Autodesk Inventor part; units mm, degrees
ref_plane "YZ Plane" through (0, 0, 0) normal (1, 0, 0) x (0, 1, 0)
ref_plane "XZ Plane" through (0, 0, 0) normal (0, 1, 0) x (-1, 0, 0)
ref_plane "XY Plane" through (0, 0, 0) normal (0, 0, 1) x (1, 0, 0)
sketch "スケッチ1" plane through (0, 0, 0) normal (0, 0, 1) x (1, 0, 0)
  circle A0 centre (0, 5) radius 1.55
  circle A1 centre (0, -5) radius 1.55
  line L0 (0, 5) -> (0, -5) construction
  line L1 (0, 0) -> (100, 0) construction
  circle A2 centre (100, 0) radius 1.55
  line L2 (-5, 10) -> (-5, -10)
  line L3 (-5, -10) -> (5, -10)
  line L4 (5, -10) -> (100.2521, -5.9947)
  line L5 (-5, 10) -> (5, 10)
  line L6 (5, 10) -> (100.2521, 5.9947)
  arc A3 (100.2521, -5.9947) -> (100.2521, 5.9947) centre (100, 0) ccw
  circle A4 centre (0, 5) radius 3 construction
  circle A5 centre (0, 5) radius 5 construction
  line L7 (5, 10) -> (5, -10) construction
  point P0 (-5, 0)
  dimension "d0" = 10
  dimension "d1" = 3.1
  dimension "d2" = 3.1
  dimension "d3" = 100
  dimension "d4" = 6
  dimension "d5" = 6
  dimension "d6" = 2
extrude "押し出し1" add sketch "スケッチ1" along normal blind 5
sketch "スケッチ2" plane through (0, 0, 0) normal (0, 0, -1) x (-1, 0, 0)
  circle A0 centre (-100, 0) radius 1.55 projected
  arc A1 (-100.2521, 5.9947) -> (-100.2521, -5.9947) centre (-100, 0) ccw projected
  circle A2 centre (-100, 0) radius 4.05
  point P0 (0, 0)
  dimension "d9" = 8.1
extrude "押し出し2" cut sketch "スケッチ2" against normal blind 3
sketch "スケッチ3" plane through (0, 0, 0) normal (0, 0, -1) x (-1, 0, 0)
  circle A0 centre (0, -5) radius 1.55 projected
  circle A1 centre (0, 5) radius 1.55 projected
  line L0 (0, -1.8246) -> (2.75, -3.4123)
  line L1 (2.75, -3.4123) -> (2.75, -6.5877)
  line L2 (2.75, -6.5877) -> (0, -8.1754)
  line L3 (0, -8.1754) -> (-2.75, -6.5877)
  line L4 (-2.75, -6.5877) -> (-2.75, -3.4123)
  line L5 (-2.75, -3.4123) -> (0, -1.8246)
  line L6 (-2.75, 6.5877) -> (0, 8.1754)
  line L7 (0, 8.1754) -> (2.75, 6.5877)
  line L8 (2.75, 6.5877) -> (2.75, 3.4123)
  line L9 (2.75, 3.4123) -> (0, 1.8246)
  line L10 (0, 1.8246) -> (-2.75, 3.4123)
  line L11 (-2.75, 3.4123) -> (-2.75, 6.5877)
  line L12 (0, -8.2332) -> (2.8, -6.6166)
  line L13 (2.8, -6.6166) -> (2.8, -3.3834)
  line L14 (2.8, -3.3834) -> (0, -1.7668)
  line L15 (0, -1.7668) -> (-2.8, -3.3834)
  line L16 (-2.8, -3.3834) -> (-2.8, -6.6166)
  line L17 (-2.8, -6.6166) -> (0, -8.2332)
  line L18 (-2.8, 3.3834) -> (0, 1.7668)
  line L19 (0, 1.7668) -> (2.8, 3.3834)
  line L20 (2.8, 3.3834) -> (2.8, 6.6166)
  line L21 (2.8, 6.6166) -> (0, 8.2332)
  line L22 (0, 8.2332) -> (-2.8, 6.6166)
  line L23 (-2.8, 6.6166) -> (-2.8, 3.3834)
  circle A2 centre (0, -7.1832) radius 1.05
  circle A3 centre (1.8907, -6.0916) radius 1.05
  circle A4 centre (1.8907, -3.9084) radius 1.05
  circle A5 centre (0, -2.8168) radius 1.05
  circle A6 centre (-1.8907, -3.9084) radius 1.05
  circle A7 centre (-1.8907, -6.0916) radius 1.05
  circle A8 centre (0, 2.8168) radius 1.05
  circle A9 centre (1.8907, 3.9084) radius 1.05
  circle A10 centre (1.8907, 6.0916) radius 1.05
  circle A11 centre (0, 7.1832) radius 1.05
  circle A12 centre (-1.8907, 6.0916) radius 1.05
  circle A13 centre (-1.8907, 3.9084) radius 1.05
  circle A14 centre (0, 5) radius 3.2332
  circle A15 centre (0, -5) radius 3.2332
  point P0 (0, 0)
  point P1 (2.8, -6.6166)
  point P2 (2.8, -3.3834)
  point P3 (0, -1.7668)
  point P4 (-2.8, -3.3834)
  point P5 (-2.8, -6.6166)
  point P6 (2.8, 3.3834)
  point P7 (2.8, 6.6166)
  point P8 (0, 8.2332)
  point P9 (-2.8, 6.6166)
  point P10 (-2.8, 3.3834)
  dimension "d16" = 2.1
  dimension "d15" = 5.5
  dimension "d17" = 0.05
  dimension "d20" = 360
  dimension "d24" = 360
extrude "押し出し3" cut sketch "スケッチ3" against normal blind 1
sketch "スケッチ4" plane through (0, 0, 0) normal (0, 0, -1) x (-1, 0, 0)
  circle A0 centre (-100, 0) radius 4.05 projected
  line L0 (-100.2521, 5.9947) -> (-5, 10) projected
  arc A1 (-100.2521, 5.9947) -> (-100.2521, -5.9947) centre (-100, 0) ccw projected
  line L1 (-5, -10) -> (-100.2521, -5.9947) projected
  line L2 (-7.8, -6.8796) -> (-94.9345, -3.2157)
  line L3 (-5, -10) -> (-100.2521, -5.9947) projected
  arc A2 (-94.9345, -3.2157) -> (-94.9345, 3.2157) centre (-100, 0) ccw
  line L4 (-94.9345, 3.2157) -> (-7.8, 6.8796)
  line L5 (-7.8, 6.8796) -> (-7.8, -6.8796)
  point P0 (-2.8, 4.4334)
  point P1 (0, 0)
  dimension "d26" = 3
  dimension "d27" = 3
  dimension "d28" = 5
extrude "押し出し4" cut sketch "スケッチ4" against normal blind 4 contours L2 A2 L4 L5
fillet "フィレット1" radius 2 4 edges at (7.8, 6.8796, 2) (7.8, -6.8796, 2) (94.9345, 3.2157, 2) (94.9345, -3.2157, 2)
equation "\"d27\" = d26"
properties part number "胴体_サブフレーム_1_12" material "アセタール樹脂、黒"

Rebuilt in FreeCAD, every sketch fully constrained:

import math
import FreeCAD as App
import Part
import Sketcher

V = App.Vector


def edges_at(feature, points):
    """Names of the edges that pass closest to the given points."""
    edges = feature.Shape.Edges
    near = lambda p: min(range(len(edges)), key=lambda i: edges[i].distToShape(Part.Vertex(*p))[0])
    return sorted({f"Edge{near(p) + 1}" for p in points})

doc = App.newDocument("Part")
body = doc.addObject("PartDesign::Body", "Body")

# Sketch on XY plane
sketch1 = body.newObject("Sketcher::SketchObject", "Sketch")
sketch1.AttachmentSupport = (doc.getObject("XY_Plane"), [""])
sketch1.MapMode = "FlatFace"
sketch1.addGeometry([
    Part.LineSegment(V(5, 10, 0), V(-5, 10, 0)),  # 0
    Part.LineSegment(V(-5, 10, 0), V(-5, -10, 0)),  # 1
    Part.LineSegment(V(-5, -10, 0), V(5, -10, 0)),  # 2
    Part.LineSegment(V(5, -10, 0), V(100.3, -6, 0)),  # 3
    Part.ArcOfCircle(Part.Circle(V(100, 0, 0), V(0, 0, 1), 6), math.radians(-88), math.radians(88)),  # 4
    Part.LineSegment(V(100.3, 6, 0), V(5, 10, 0)),  # 5
    Part.Circle(V(0, -5, 0), V(0, 0, 1), 1.6),  # 6
    Part.Circle(V(0, 5, 0), V(0, 0, 1), 1.6),  # 7
    Part.Circle(V(100, 0, 0), V(0, 0, 1), 1.6),  # 8
], False)
sketch1.addConstraint([
    Sketcher.Constraint("Coincident", 0, 2, 1, 1),
    Sketcher.Constraint("Coincident", 1, 2, 2, 1),
    Sketcher.Constraint("Coincident", 2, 2, 3, 1),
    Sketcher.Constraint("Tangent", 3, 2, 4, 1),
    Sketcher.Constraint("Tangent", 4, 2, 5, 1),
    Sketcher.Constraint("Coincident", 5, 2, 0, 1),
    Sketcher.Constraint("Horizontal", 0),
    Sketcher.Constraint("Vertical", 1),
    Sketcher.Constraint("Horizontal", 2),
    Sketcher.Constraint("Coincident", 8, 3, 4, 3),
    Sketcher.Constraint("Equal", 6, 7),
    Sketcher.Constraint("Equal", 7, 8),
    Sketcher.Constraint("Symmetric", 6, 3, 7, 3, -1, 1),
    Sketcher.Constraint("Symmetric", 0, 2, 2, 2, -1, 1),
    Sketcher.Constraint("Symmetric", 3, 2, 4, 2, -1),
    Sketcher.Constraint("PointOnObject", 6, 3, -2),
    Sketcher.Constraint("Radius", 4, 6.0),
    Sketcher.Constraint("Diameter", 6, 3.1),
    Sketcher.Constraint("DistanceX", 0, 2, 0, 1, 10.0),
    Sketcher.Constraint("DistanceX", -1, 1, 4, 3, 100.0),
    Sketcher.Constraint("DistanceY", -1, 1, 0, 2, 10.0),
    Sketcher.Constraint("DistanceY", 6, 3, 7, 3, 10.0),
])
pad1 = body.newObject("PartDesign::Pad", "Pad")
pad1.Profile = sketch1
pad1.Length = 5

# Sketch on XY plane
sketch2 = body.newObject("Sketcher::SketchObject", "Sketch001")
sketch2.AttachmentSupport = (doc.getObject("XY_Plane"), [""])
sketch2.MapMode = "FlatFace"
sketch2.addGeometry([
    Part.Circle(V(100, 0, 0), V(0, 0, 1), 4),
    Part.Circle(V(100, 0, 0), V(0, 0, 1), 1.6),
], False)
sketch2.addConstraint([
    Sketcher.Constraint("Coincident", 1, 3, 0, 3),
    Sketcher.Constraint("PointOnObject", 0, 3, -1),
    Sketcher.Constraint("Diameter", 0, 8.1),
    Sketcher.Constraint("Diameter", 1, 3.1),
    Sketcher.Constraint("DistanceX", -1, 1, 0, 3, 100.0),
])
pocket1 = body.newObject("PartDesign::Pocket", "Pocket")
pocket1.Profile = sketch2
pocket1.Length = 3
pocket1.Reversed = True

# Sketch on XY plane
sketch3 = body.newObject("Sketcher::SketchObject", "Sketch002")
sketch3.AttachmentSupport = (doc.getObject("XY_Plane"), [""])
sketch3.MapMode = "FlatFace"
sketch3.addGeometry([
    Part.Circle(V(0, -5, 0), V(0, 0, 1), 3.2),
    Part.Circle(V(0, 5, 0), V(0, 0, 1), 3.2),
], False)
sketch3.addConstraint([
    Sketcher.Constraint("Equal", 0, 1),
    Sketcher.Constraint("Symmetric", 0, 3, 1, 3, -1, 1),
    Sketcher.Constraint("PointOnObject", 0, 3, -2),
    Sketcher.Constraint("DistanceY", 0, 3, -1, 1, 5.0),
    Sketcher.Constraint("Diameter", 0, 6.4664),
])
pocket2 = body.newObject("PartDesign::Pocket", "Pocket001")
pocket2.Profile = sketch3
pocket2.Length = 1
pocket2.Reversed = True

# Sketch on XY plane
sketch4 = body.newObject("Sketcher::SketchObject", "Sketch003")
sketch4.AttachmentSupport = (doc.getObject("XY_Plane"), [""])
sketch4.MapMode = "FlatFace"
sketch4.addGeometry([
    Part.LineSegment(V(95, -3, 0), V(8, -7, 0)),
    Part.LineSegment(V(8, -7, 0), V(8, 7, 0)),
    Part.LineSegment(V(8, 7, 0), V(95, 3, 0)),
    Part.ArcOfCircle(Part.Circle(V(100, 0, 0), V(0, 0, 1), 6), math.radians(148), math.radians(212)),
], False)
sketch4.addConstraint([
    Sketcher.Constraint("Coincident", 0, 2, 1, 1),
    Sketcher.Constraint("Coincident", 1, 2, 2, 1),
    Sketcher.Constraint("Coincident", 2, 2, 3, 1),
    Sketcher.Constraint("Coincident", 3, 2, 0, 1),
    Sketcher.Constraint("Vertical", 1),
    Sketcher.Constraint("Symmetric", 2, 2, 3, 2, -1),
    Sketcher.Constraint("Equal", 0, 2),
    Sketcher.Constraint("Radius", 3, 6.0),
    Sketcher.Constraint("DistanceX", -1, 1, 3, 3, 100.0),
    Sketcher.Constraint("DistanceX", -1, 1, 0, 2, 7.8),
    Sketcher.Constraint("DistanceY", 1, 1, 1, 2, 13.7592),
    Sketcher.Constraint("DistanceY", 2, 2, 1, 2, 3.664),
])
pocket3 = body.newObject("PartDesign::Pocket", "Pocket002")
pocket3.Profile = sketch4
pocket3.Length = 4
pocket3.Reversed = True
doc.recompute()

fillet = body.newObject("PartDesign::Fillet", "Fillet")
fillet.Base = (pocket3, edges_at(pocket3, [
    (7.8, 6.88, 2),
    (7.8, -6.88, 2),
    (94.934, 3.216, 2),
    (94.934, -3.216, 2),
]))
fillet.Radius = 2

doc.recompute()
